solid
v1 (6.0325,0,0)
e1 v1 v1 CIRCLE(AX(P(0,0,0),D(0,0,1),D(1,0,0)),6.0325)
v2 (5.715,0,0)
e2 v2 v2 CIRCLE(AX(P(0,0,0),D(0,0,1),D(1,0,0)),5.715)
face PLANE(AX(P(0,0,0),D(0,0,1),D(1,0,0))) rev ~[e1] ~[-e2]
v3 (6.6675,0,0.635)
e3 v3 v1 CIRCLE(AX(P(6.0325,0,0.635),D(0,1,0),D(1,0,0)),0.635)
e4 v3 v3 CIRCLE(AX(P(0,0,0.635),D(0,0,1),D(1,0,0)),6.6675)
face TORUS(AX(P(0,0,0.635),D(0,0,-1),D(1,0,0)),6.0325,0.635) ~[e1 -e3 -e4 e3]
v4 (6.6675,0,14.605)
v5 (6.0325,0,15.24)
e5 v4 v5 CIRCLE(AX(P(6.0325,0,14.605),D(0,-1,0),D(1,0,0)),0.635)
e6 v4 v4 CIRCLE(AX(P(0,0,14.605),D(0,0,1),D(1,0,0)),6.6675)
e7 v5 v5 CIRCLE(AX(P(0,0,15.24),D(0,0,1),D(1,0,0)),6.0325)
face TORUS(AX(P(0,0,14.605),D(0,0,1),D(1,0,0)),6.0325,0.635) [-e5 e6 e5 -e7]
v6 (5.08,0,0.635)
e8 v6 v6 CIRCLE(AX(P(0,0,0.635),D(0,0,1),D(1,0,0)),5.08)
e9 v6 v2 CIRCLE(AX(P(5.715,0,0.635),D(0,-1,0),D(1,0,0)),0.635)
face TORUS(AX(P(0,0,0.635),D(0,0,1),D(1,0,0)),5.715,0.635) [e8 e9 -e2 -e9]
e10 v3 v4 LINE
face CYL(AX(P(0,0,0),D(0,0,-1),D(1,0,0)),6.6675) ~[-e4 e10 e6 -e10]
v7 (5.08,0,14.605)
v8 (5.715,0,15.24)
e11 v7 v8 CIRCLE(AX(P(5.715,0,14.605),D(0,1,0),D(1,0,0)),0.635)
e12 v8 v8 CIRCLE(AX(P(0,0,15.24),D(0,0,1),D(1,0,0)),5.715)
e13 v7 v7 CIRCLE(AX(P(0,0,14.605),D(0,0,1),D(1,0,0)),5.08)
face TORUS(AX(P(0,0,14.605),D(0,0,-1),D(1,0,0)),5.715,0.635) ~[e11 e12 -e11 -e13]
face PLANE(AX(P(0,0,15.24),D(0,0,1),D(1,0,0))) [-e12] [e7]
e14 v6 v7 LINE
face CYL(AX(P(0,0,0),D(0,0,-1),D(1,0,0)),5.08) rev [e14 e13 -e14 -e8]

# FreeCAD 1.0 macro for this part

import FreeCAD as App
import Part
import Sketcher
from FreeCAD import Vector
Q = App.Units.Quantity


def edges_at(feature, points):
    """Names of the edges that pass closest to the given points."""
    edges = feature.Shape.Edges
    near = lambda p: min(range(len(edges)), key=lambda i: edges[i].distToShape(Part.Vertex(*p))[0])
    return sorted({f"Edge{near(p) + 1}" for p in points})

doc = App.newDocument("Part")
body = doc.addObject("PartDesign::Body", "Body")

# Sketch on XY plane
sketch1 = body.newObject("Sketcher::SketchObject", "Sketch")
sketch1.AttachmentSupport = (doc.getObject("XY_Plane"), [""])
sketch1.MapMode = "FlatFace"
sketch1.addGeometry(Part.Circle(Vector(0, 0, 0), Vector(0, 0, 1), 7), False)
sketch1.addGeometry(Part.Circle(Vector(0, 0, 0), Vector(0, 0, 1), 5), False)
sketch1.addConstraint(Sketcher.Constraint("Coincident", 0, 3, -1, 1))
sketch1.addConstraint(Sketcher.Constraint("Coincident", 1, 3, -1, 1))
sketch1.addConstraint(Sketcher.Constraint("Diameter", 1, Q("0.4 in")))
sketch1.addConstraint(Sketcher.Constraint("Diameter", 0, Q("0.525 in")))
pad1 = body.newObject("PartDesign::Pad", "Pad")
pad1.Profile = sketch1
pad1.Length = Q("0.6 in")
doc.recompute()

fillet = body.newObject("PartDesign::Fillet", "Fillet")
fillet.Base = (pad1, edges_at(pad1, [
    (-6.668, 0, 15.24),
    (-5.08, 0, 15.24),
    (-6.668, 0, 0),
    (-5.08, 0, 0),
]))
fillet.Radius = Q("0.025 in")

doc.recompute()
